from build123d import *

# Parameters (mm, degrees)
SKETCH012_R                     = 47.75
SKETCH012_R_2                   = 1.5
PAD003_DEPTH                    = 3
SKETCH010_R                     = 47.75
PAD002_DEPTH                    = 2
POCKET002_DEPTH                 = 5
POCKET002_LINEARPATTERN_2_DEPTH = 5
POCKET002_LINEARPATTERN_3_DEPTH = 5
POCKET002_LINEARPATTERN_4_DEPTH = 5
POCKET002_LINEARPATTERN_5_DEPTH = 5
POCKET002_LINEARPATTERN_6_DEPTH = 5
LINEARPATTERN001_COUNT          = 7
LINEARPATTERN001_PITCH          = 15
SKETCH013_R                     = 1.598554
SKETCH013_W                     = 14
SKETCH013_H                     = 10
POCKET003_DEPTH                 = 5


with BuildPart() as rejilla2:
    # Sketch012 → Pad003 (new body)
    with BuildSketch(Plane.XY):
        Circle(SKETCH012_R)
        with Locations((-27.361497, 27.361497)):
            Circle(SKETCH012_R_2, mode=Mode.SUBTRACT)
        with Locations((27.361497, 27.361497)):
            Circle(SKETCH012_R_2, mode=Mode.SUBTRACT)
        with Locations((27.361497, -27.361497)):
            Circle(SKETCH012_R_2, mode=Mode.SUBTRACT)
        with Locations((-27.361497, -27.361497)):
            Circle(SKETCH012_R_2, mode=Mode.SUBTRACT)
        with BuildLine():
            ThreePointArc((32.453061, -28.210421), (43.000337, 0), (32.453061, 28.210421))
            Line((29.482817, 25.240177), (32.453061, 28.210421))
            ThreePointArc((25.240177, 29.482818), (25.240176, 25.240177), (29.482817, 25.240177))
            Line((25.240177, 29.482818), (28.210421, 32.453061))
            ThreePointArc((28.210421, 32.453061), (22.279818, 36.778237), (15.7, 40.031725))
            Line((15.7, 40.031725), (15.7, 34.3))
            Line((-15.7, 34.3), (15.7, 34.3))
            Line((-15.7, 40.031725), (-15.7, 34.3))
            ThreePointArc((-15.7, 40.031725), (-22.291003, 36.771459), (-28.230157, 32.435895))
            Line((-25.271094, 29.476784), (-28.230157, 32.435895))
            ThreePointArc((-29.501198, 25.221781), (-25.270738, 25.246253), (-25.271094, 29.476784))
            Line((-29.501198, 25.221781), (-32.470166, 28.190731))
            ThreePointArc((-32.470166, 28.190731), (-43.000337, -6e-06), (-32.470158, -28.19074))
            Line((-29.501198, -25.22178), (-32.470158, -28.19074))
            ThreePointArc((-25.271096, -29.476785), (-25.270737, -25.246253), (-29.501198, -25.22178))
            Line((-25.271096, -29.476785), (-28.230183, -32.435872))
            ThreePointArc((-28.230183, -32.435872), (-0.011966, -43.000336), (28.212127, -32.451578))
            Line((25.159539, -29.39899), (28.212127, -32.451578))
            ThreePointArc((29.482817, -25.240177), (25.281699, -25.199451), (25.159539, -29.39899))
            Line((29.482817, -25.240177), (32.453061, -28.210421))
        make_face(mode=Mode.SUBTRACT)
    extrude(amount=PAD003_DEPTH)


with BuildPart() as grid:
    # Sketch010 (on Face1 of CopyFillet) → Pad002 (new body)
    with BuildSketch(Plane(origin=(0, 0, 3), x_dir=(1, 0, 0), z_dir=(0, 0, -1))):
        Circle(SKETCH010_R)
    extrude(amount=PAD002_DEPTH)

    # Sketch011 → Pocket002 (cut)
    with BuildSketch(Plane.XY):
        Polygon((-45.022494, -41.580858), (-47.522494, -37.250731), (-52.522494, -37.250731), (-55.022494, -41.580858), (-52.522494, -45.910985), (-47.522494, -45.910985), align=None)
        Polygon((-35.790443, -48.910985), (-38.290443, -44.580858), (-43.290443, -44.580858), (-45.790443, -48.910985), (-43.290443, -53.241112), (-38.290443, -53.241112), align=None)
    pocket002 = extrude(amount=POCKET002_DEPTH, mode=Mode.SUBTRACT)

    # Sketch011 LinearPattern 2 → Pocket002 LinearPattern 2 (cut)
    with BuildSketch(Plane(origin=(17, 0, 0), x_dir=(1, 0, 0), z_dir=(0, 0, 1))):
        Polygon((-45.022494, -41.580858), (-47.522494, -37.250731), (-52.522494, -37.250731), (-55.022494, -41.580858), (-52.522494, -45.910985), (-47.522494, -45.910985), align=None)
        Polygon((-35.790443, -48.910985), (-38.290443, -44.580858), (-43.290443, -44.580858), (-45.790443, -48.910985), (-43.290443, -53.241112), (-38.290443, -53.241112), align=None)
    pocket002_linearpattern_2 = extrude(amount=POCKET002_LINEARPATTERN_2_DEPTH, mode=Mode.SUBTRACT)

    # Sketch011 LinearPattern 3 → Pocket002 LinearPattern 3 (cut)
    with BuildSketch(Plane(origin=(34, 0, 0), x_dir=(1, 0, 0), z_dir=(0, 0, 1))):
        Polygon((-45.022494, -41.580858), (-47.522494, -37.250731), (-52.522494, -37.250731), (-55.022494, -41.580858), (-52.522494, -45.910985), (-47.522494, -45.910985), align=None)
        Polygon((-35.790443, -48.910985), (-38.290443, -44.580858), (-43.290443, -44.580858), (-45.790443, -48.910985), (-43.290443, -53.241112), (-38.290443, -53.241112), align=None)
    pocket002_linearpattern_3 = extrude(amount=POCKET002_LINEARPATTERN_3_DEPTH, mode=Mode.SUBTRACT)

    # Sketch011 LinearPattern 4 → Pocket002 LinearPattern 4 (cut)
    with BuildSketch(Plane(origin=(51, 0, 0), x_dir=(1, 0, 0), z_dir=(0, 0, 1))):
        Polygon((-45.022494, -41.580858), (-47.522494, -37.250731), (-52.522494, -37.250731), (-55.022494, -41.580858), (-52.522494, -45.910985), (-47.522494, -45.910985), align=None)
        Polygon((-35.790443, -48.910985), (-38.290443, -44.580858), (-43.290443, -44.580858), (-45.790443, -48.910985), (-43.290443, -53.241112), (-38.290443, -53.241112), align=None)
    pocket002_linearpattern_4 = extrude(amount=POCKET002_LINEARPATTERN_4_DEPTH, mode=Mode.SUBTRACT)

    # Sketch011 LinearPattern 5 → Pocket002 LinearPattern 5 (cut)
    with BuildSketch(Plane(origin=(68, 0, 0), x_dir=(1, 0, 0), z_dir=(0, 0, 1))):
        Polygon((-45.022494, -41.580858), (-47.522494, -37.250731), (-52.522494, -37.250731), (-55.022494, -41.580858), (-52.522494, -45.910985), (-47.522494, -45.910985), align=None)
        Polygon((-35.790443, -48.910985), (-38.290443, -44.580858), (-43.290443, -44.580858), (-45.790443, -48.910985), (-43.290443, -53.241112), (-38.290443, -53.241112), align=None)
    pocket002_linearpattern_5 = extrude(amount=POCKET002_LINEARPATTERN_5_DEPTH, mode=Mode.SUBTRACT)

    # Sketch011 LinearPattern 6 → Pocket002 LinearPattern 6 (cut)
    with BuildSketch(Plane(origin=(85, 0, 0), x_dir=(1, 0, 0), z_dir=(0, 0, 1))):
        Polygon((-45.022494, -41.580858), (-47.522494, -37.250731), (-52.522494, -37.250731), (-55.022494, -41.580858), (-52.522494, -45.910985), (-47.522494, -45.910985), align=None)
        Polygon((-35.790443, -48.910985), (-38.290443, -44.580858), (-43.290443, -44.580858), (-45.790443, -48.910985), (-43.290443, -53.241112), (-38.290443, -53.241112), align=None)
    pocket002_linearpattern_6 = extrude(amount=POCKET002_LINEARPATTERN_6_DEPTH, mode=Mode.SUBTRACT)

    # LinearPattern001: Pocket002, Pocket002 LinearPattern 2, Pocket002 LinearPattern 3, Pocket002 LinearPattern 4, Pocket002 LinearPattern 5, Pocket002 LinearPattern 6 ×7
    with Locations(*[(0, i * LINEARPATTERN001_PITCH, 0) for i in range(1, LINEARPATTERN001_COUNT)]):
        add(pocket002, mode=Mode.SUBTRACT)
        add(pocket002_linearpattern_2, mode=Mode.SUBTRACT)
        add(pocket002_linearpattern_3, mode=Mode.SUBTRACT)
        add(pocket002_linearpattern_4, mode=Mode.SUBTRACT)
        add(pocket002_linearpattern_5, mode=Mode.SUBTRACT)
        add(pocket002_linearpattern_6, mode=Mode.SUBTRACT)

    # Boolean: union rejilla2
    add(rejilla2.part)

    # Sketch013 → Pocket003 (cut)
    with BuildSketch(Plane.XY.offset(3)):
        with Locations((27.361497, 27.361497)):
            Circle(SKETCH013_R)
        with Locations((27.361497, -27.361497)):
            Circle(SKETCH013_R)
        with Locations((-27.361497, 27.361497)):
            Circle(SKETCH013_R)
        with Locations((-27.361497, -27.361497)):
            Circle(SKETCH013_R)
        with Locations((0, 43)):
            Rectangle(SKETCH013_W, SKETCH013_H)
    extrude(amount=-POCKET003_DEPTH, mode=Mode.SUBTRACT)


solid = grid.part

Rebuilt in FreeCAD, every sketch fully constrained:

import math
import FreeCAD as App
import Part
import Sketcher
from FreeCAD import Vector
Q = App.Units.Quantity


def add_polygon(sketch, points):
    """Adds a closed chain of lines whose ends are joined by coincident constraints."""
    first, n = sketch.GeometryCount, len(points)
    for a, b in zip(points, points[1:] + points[:1]):
        sketch.addGeometry(Part.LineSegment(App.Vector(*a, 0), App.Vector(*b, 0)), False)
    for i in range(n):
        sketch.addConstraint(Sketcher.Constraint("Coincident", first + i, 2, first + (i + 1) % n, 1))

doc = App.newDocument("Part")
body = doc.addObject("PartDesign::Body", "Body")

# Sketch on XY plane
sketch1 = body.newObject("Sketcher::SketchObject", "Sketch")
sketch1.AttachmentSupport = (doc.getObject("XY_Plane"), [""])
sketch1.MapMode = "FlatFace"
sketch1.addGeometry(Part.Circle(Vector(0, 0, 0), Vector(0, 0, 1), 47.75), False)
sketch1.addGeometry(Part.Circle(Vector(-27.361497, -27.361497, 0), Vector(0, 0, 1), 1.5), False)
sketch1.addGeometry(Part.Circle(Vector(27.361497, -27.361497, 0), Vector(0, 0, 1), 1.5), False)
sketch1.addGeometry(Part.Circle(Vector(-27.361497, 27.361497, 0), Vector(0, 0, 1), 1.5), False)
sketch1.addGeometry(Part.ArcOfCircle(Part.Circle(Vector(-0.000002, 0, 0), Vector(0, 0, 1), 43.000339), math.radians(-40.999401), math.radians(40.999401)), False)
sketch1.addGeometry(Part.LineSegment(Vector(32.453061, -28.210421, 0), Vector(29.482817, -25.240177, 0)), False)
sketch1.addGeometry(Part.ArcOfCircle(Part.Circle(Vector(27.361496, -27.361496, 0), Vector(0, 0, 1), 2.999999), math.radians(44.999981), math.radians(222.778404)), False)
sketch1.addGeometry(Part.LineSegment(Vector(25.159539, -29.39899, 0), Vector(28.212127, -32.451578, 0)), False)
sketch1.addGeometry(Part.ArcOfCircle(Part.Circle(Vector(0, -0.000001, 0), Vector(0, 0, 1), 43.000337), math.radians(-131.034302), math.radians(-48.997585)), False)
sketch1.addGeometry(Part.LineSegment(Vector(-28.230183, -32.435872, 0), Vector(-25.271096, -29.476785, 0)), False)
sketch1.addGeometry(Part.ArcOfCircle(Part.Circle(Vector(-27.398274, -27.361338, 0), Vector(0, 0, 1), 3), math.radians(-44.84157), math.radians(134.505255)), False)
sketch1.addGeometry(Part.LineSegment(Vector(-29.501198, -25.22178, 0), Vector(-32.470158, -28.19074, 0)), False)
sketch1.addGeometry(Part.ArcOfCircle(Part.Circle(Vector(0, 0, 0), Vector(0, 0, 1), 43.000337), math.radians(139.035351), math.radians(220.964665)), False)
sketch1.addGeometry(Part.LineSegment(Vector(-32.470166, 28.190731, 0), Vector(-29.501198, 25.221781, 0)), False)
sketch1.addGeometry(Part.ArcOfCircle(Part.Circle(Vector(-27.398274, 27.361339, 0), Vector(0, 0, 1), 3), math.radians(-134.505255), math.radians(44.841516)), False)
sketch1.addGeometry(Part.LineSegment(Vector(-25.271094, 29.476784, 0), Vector(-28.230157, 32.435895, 0)), False)
sketch1.addGeometry(Part.ArcOfCircle(Part.Circle(Vector(0.000005, -0.000012, 0), Vector(0, 0, 1), 43.00035), math.radians(111.414564), math.radians(131.03425)), False)
sketch1.addGeometry(Part.LineSegment(Vector(-15.7, 40.031725, 0), Vector(-15.7, 34.3, 0)), False)
sketch1.addGeometry(Part.LineSegment(Vector(-15.7, 34.3, 0), Vector(15.7, 34.3, 0)), False)
sketch1.addGeometry(Part.LineSegment(Vector(15.7, 34.3, 0), Vector(15.7, 40.031725, 0)), False)
sketch1.addGeometry(Part.ArcOfCircle(Part.Circle(Vector(-0.000002, -0.000005, 0), Vector(0, 0, 1), 43.000343), math.radians(49.0006), math.radians(68.585437)), False)
sketch1.addGeometry(Part.LineSegment(Vector(28.210421, 32.453061, 0), Vector(25.240177, 29.482818, 0)), False)
sketch1.addGeometry(Part.ArcOfCircle(Part.Circle(Vector(27.361497, 27.361497, 0), Vector(0, 0, 1), 3), math.radians(134.99998), math.radians(315.000007)), False)
sketch1.addGeometry(Part.LineSegment(Vector(29.482817, 25.240177, 0), Vector(32.453061, 28.210421, 0)), False)
sketch1.addGeometry(Part.Circle(Vector(27.361497, 27.361497, 0), Vector(0, 0, 1), 1.5), False)
sketch1.addConstraint(Sketcher.Constraint("Coincident", 4, 1, 5, 1))
sketch1.addConstraint(Sketcher.Constraint("Coincident", 5, 2, 6, 1))
sketch1.addConstraint(Sketcher.Constraint("Coincident", 6, 2, 7, 1))
sketch1.addConstraint(Sketcher.Constraint("Coincident", 7, 2, 8, 2))
sketch1.addConstraint(Sketcher.Constraint("Coincident", 8, 1, 9, 1))
sketch1.addConstraint(Sketcher.Constraint("Coincident", 9, 2, 10, 1))
sketch1.addConstraint(Sketcher.Constraint("Coincident", 10, 2, 11, 1))
sketch1.addConstraint(Sketcher.Constraint("Coincident", 11, 2, 12, 2))
sketch1.addConstraint(Sketcher.Constraint("Coincident", 12, 1, 13, 1))
sketch1.addConstraint(Sketcher.Constraint("Coincident", 13, 2, 14, 1))
sketch1.addConstraint(Sketcher.Constraint("Coincident", 14, 2, 15, 1))
sketch1.addConstraint(Sketcher.Constraint("Coincident", 15, 2, 16, 2))
sketch1.addConstraint(Sketcher.Constraint("Coincident", 16, 1, 17, 1))
sketch1.addConstraint(Sketcher.Constraint("Coincident", 17, 2, 18, 1))
sketch1.addConstraint(Sketcher.Constraint("Coincident", 18, 2, 19, 1))
sketch1.addConstraint(Sketcher.Constraint("Coincident", 19, 2, 20, 2))
sketch1.addConstraint(Sketcher.Constraint("Coincident", 20, 1, 21, 1))
sketch1.addConstraint(Sketcher.Constraint("Coincident", 21, 2, 22, 1))
sketch1.addConstraint(Sketcher.Constraint("Coincident", 22, 2, 23, 1))
sketch1.addConstraint(Sketcher.Constraint("Coincident", 23, 2, 4, 2))
sketch1.addConstraint(Sketcher.Constraint("Vertical", 17))
sketch1.addConstraint(Sketcher.Constraint("Horizontal", 18))
sketch1.addConstraint(Sketcher.Constraint("Vertical", 19))
sketch1.addConstraint(Sketcher.Constraint("Coincident", 0, 3, -1, 1))
sketch1.addConstraint(Sketcher.Constraint("Coincident", 4, 3, -1, 1))
sketch1.addConstraint(Sketcher.Constraint("Coincident", 8, 3, -1, 1))
sketch1.addConstraint(Sketcher.Constraint("Coincident", 12, 3, -1, 1))
sketch1.addConstraint(Sketcher.Constraint("Coincident", 20, 3, -1, 1))
sketch1.addConstraint(Sketcher.Constraint("Coincident", 6, 3, 2, 3))
sketch1.addConstraint(Sketcher.Constraint("Coincident", 24, 3, 22, 3))
sketch1.addConstraint(Sketcher.Constraint("Diameter", 1, 3.0))
sketch1.addConstraint(Sketcher.Constraint("Diameter", 2, 3.0))
sketch1.addConstraint(Sketcher.Constraint("Diameter", 3, 3.0))
sketch1.addConstraint(Sketcher.Constraint("Diameter", 24, 3.0))
sketch1.addConstraint(Sketcher.Constraint("Radius", 6, 2.999999))
sketch1.addConstraint(Sketcher.Constraint("Radius", 10, 3.0))
sketch1.addConstraint(Sketcher.Constraint("Radius", 14, 3.0))
sketch1.addConstraint(Sketcher.Constraint("Radius", 22, 3.0))
sketch1.addConstraint(Sketcher.Constraint("Diameter", 0, 95.5))
sketch1.addConstraint(Sketcher.Constraint("DistanceX", 18, 1, 18, 2, 31.4))
sketch1.addConstraint(Sketcher.Constraint("DistanceX", 16, 1, -1, 1, 15.7))
sketch1.addConstraint(Sketcher.Constraint("DistanceY", -1, 1, 17, 2, 34.3))
sketch1.addConstraint(Sketcher.Constraint("Radius", 4, 43.000339))
sketch1.addConstraint(Sketcher.Constraint("Radius", 16, 43.00035))
sketch1.addConstraint(Sketcher.Constraint("Radius", 8, 43.000337))
sketch1.addConstraint(Sketcher.Constraint("Radius", 12, 43.000337))
sketch1.addConstraint(Sketcher.Constraint("Radius", 20, 43.000343))
sketch1.addConstraint(Sketcher.Constraint("DistanceX", 10, 2, -1, 1, 29.501198))
sketch1.addConstraint(Sketcher.Constraint("DistanceX", 4, 3, 2, 3, 27.361499))
sketch1.addConstraint(Sketcher.Constraint("DistanceX", 4, 3, 22, 3, 27.361498))
sketch1.addConstraint(Sketcher.Constraint("DistanceY", 7, 2, 5, 2, 7.211401))
sketch1.addConstraint(Sketcher.Constraint("DistanceX", 1, 3, 9, 2, 2.090401))
sketch1.addConstraint(Sketcher.Constraint("DistanceX", 9, 2, 16, 3, 25.271101))
sketch1.addConstraint(Sketcher.Constraint("DistanceX", 10, 2, 1, 3, 2.139701))
sketch1.addConstraint(Sketcher.Constraint("DistanceY", 11, 2, 10, 3, 0.829402))
sketch1.addConstraint(Sketcher.Constraint("DistanceX", 13, 2, 3, 3, 2.139701))
sketch1.addConstraint(Sketcher.Constraint("DistanceY", 3, 3, 15, 2, 5.074398))
sketch1.addConstraint(Sketcher.Constraint("Distance", 5, 4.200559))
sketch1.addConstraint(Sketcher.Constraint("Distance", 7, 4.317011))
sketch1.addConstraint(Sketcher.Constraint("Distance", 9, 4.184781))
sketch1.addConstraint(Sketcher.Constraint("Distance", 15, 4.184781))
sketch1.addConstraint(Sketcher.Constraint("Distance", 21, 4.200559))
sketch1.addConstraint(Sketcher.Constraint("Distance", 23, 4.200559))
sketch1.addConstraint(Sketcher.Constraint("DistanceY", 17, 2, 17, 1, 5.731725))
sketch1.addConstraint(Sketcher.Constraint("DistanceY", 10, 3, -1, 1, 27.361338))
sketch1.addConstraint(Sketcher.Constraint("DistanceY", -1, 1, 14, 3, 27.361339))
sketch1.addConstraint(Sketcher.Constraint("DistanceX", -1, 1, 4, 1, 32.453061))
sketch1.addConstraint(Sketcher.Constraint("DistanceX", -1, 1, 6, 2, 25.159539))
sketch1.addConstraint(Sketcher.Constraint("DistanceY", 10, 2, -1, 1, 25.22178))
sketch1.addConstraint(Sketcher.Constraint("DistanceY", -1, 1, 12, 1, 28.190731))
sketch1.addConstraint(Sketcher.Constraint("DistanceY", -1, 1, 13, 2, 25.221781))
sketch1.addConstraint(Sketcher.Constraint("DistanceX", -1, 1, 20, 1, 28.210421))
sketch1.addConstraint(Sketcher.Constraint("DistanceY", -1, 1, 21, 2, 29.482818))
sketch1.addConstraint(Sketcher.Constraint("DistanceX", -1, 1, 23, 2, 32.453061))
sketch1.addConstraint(Sketcher.Constraint("DistanceY", 1, 3, 10, 3, 0.000159))
sketch1.addConstraint(Sketcher.Constraint("DistanceX", 12, 1, 3, 3, 5.108669))
sketch1.addConstraint(Sketcher.Constraint("DistanceX", 14, 3, 14, 2, 2.12718))
pad1 = body.newObject("PartDesign::Pad", "Pad")
pad1.Profile = sketch1
pad1.Length = 3
body2 = doc.addObject("PartDesign::Body", "Body001")

# Sketch on XY plane
sketch2 = body2.newObject("Sketcher::SketchObject", "Sketch001")
sketch2.AttachmentSupport = (doc.getObject("XY_Plane001"), [""])
sketch2.MapMode = "FlatFace"
sketch2.AttachmentOffset = App.Placement(Vector(0, 0, 3), App.Rotation())
sketch2.addGeometry(Part.Circle(Vector(0, 0, 0), Vector(0, 0, 1), 48), False)
sketch2.addConstraint(Sketcher.Constraint("Coincident", 0, 3, -1, 1))
sketch2.addConstraint(Sketcher.Constraint("Diameter", 0, 95.5))
pad2 = body2.newObject("PartDesign::Pad", "Pad001")
pad2.Profile = sketch2
pad2.Length = 2
pad2.Reversed = True

# Sketch on XY plane
sketch3 = body2.newObject("Sketcher::SketchObject", "Sketch002")
sketch3.AttachmentSupport = (doc.getObject("XY_Plane001"), [""])
sketch3.MapMode = "FlatFace"
add_polygon(sketch3, [(-45, -41.6), (-47.5, -37.3), (-52.5, -37.3), (-55, -41.6), (-52.5, -45.9), (-47.5, -45.9)])  # lines 0-5
add_polygon(sketch3, [(-35.8, -48.9), (-38.3, -44.6), (-43.3, -44.6), (-45.8, -48.9), (-43.3, -53.2), (-38.3, -53.2)])  # lines 6-11
sketch3.addConstraint(Sketcher.Constraint("Horizontal", 1))
sketch3.addConstraint(Sketcher.Constraint("Horizontal", 4))
sketch3.addConstraint(Sketcher.Constraint("Horizontal", 7))
sketch3.addConstraint(Sketcher.Constraint("Horizontal", 10))
sketch3.addConstraint(Sketcher.Constraint("Parallel", 0, 3))
sketch3.addConstraint(Sketcher.Constraint("Parallel", 2, 5))
sketch3.addConstraint(Sketcher.Constraint("Parallel", 3, 6))
sketch3.addConstraint(Sketcher.Constraint("Parallel", 5, 8))
sketch3.addConstraint(Sketcher.Constraint("Parallel", 6, 9))
sketch3.addConstraint(Sketcher.Constraint("Parallel", 8, 11))
sketch3.addConstraint(Sketcher.Constraint("Horizontal", 2, 2, 5, 2))
sketch3.addConstraint(Sketcher.Constraint("Horizontal", 8, 2, 11, 2))
sketch3.addConstraint(Sketcher.Constraint("Vertical", 1, 2, 3, 2))
sketch3.addConstraint(Sketcher.Constraint("Vertical", 0, 2, 4, 2))
sketch3.addConstraint(Sketcher.Constraint("Vertical", 7, 2, 9, 2))
sketch3.addConstraint(Sketcher.Constraint("Equal", 4, 7))
sketch3.addConstraint(Sketcher.Constraint("Equal", 5, 6))
sketch3.addConstraint(Sketcher.Constraint("DistanceX", 1, 2, 1, 1, 5.0))
sketch3.addConstraint(Sketcher.Constraint("Angle", 0, Q("120 deg")))
sketch3.addConstraint(Sketcher.Constraint("Distance", 0, 5.0))
sketch3.addConstraint(Sketcher.Constraint("DistanceY", 6, 2, 5, 2, 3.0))
sketch3.addConstraint(Sketcher.Constraint("DistanceY", 0, 2, -1, 1, 37.250731))
sketch3.addConstraint(Sketcher.Constraint("DistanceX", 5, 2, 6, 2, 6.732051))
sketch3.addConstraint(Sketcher.Constraint("DistanceX", 0, 2, -1, 1, 47.522494))
pocket1 = body2.newObject("PartDesign::Pocket", "Pocket")
pocket1.Profile = sketch3
pocket1.Length = 5
pocket1.Reversed = True

# Sketch on XY plane
sketch4 = body2.newObject("Sketcher::SketchObject", "Sketch003")
sketch4.AttachmentSupport = (doc.getObject("XY_Plane001"), [""])
sketch4.MapMode = "FlatFace"
add_polygon(sketch4, [(-28, -41.6), (-30.5, -37.3), (-35.5, -37.3), (-38, -41.6), (-35.5, -45.9), (-30.5, -45.9)])  # lines 0-5
add_polygon(sketch4, [(-18.8, -48.9), (-21.3, -44.6), (-26.3, -44.6), (-28.8, -48.9), (-26.3, -53.2), (-21.3, -53.2)])  # lines 6-11
sketch4.addConstraint(Sketcher.Constraint("Horizontal", 1))
sketch4.addConstraint(Sketcher.Constraint("Horizontal", 4))
sketch4.addConstraint(Sketcher.Constraint("Horizontal", 7))
sketch4.addConstraint(Sketcher.Constraint("Horizontal", 10))
sketch4.addConstraint(Sketcher.Constraint("Parallel", 0, 3))
sketch4.addConstraint(Sketcher.Constraint("Parallel", 2, 5))
sketch4.addConstraint(Sketcher.Constraint("Parallel", 3, 6))
sketch4.addConstraint(Sketcher.Constraint("Parallel", 5, 8))
sketch4.addConstraint(Sketcher.Constraint("Parallel", 6, 9))
sketch4.addConstraint(Sketcher.Constraint("Parallel", 8, 11))
sketch4.addConstraint(Sketcher.Constraint("Horizontal", 2, 2, 5, 2))
sketch4.addConstraint(Sketcher.Constraint("Horizontal", 8, 2, 11, 2))
sketch4.addConstraint(Sketcher.Constraint("Vertical", 1, 2, 3, 2))
sketch4.addConstraint(Sketcher.Constraint("Vertical", 0, 2, 4, 2))
sketch4.addConstraint(Sketcher.Constraint("Vertical", 7, 2, 9, 2))
sketch4.addConstraint(Sketcher.Constraint("Equal", 4, 7))
sketch4.addConstraint(Sketcher.Constraint("Equal", 5, 6))
sketch4.addConstraint(Sketcher.Constraint("DistanceX", 1, 2, 1, 1, 5.0))
sketch4.addConstraint(Sketcher.Constraint("Angle", 0, Q("120 deg")))
sketch4.addConstraint(Sketcher.Constraint("Distance", 0, 5.0))
sketch4.addConstraint(Sketcher.Constraint("DistanceY", 6, 2, 5, 2, 3.0))
sketch4.addConstraint(Sketcher.Constraint("DistanceY", 0, 2, -1, 1, 37.250731))
sketch4.addConstraint(Sketcher.Constraint("DistanceX", 5, 2, 6, 2, 6.732051))
sketch4.addConstraint(Sketcher.Constraint("DistanceX", 0, 2, -1, 1, 30.522494))
pocket2 = body2.newObject("PartDesign::Pocket", "Pocket001")
pocket2.Profile = sketch4
pocket2.Length = 5
pocket2.Reversed = True

# Sketch on XY plane
sketch5 = body2.newObject("Sketcher::SketchObject", "Sketch004")
sketch5.AttachmentSupport = (doc.getObject("XY_Plane001"), [""])
sketch5.MapMode = "FlatFace"
add_polygon(sketch5, [(-11, -41.6), (-13.5, -37.3), (-18.5, -37.3), (-21, -41.6), (-18.5, -45.9), (-13.5, -45.9)])  # lines 0-5
add_polygon(sketch5, [(-1.8, -48.9), (-4.3, -44.6), (-9.3, -44.6), (-11.8, -48.9), (-9.3, -53.2), (-4.3, -53.2)])  # lines 6-11
sketch5.addConstraint(Sketcher.Constraint("Horizontal", 1))
sketch5.addConstraint(Sketcher.Constraint("Horizontal", 4))
sketch5.addConstraint(Sketcher.Constraint("Horizontal", 7))
sketch5.addConstraint(Sketcher.Constraint("Horizontal", 10))
sketch5.addConstraint(Sketcher.Constraint("Parallel", 0, 3))
sketch5.addConstraint(Sketcher.Constraint("Parallel", 2, 5))
sketch5.addConstraint(Sketcher.Constraint("Parallel", 3, 6))
sketch5.addConstraint(Sketcher.Constraint("Parallel", 5, 8))
sketch5.addConstraint(Sketcher.Constraint("Parallel", 6, 9))
sketch5.addConstraint(Sketcher.Constraint("Parallel", 8, 11))
sketch5.addConstraint(Sketcher.Constraint("Horizontal", 2, 2, 5, 2))
sketch5.addConstraint(Sketcher.Constraint("Horizontal", 8, 2, 11, 2))
sketch5.addConstraint(Sketcher.Constraint("Vertical", 1, 2, 3, 2))
sketch5.addConstraint(Sketcher.Constraint("Vertical", 0, 2, 4, 2))
sketch5.addConstraint(Sketcher.Constraint("Vertical", 7, 2, 9, 2))
sketch5.addConstraint(Sketcher.Constraint("Equal", 4, 7))
sketch5.addConstraint(Sketcher.Constraint("Equal", 5, 6))
sketch5.addConstraint(Sketcher.Constraint("DistanceX", 1, 2, 1, 1, 5.0))
sketch5.addConstraint(Sketcher.Constraint("Angle", 0, Q("120 deg")))
sketch5.addConstraint(Sketcher.Constraint("Distance", 0, 5.0))
sketch5.addConstraint(Sketcher.Constraint("DistanceY", 6, 2, 5, 2, 3.0))
sketch5.addConstraint(Sketcher.Constraint("DistanceY", 0, 2, -1, 1, 37.250731))
sketch5.addConstraint(Sketcher.Constraint("DistanceX", 5, 2, 6, 2, 6.732051))
sketch5.addConstraint(Sketcher.Constraint("DistanceX", 0, 2, -1, 1, 13.522494))
pocket3 = body2.newObject("PartDesign::Pocket", "Pocket002")
pocket3.Profile = sketch5
pocket3.Length = 5
pocket3.Reversed = True

# Sketch on XY plane
sketch6 = body2.newObject("Sketcher::SketchObject", "Sketch005")
sketch6.AttachmentSupport = (doc.getObject("XY_Plane001"), [""])
sketch6.MapMode = "FlatFace"
add_polygon(sketch6, [(6, -41.6), (3.5, -37.3), (-1.5, -37.3), (-4, -41.6), (-1.5, -45.9), (3.5, -45.9)])  # lines 0-5
add_polygon(sketch6, [(15.2, -48.9), (12.7, -44.6), (7.7, -44.6), (5.2, -48.9), (7.7, -53.2), (12.7, -53.2)])  # lines 6-11
sketch6.addConstraint(Sketcher.Constraint("Horizontal", 1))
sketch6.addConstraint(Sketcher.Constraint("Horizontal", 4))
sketch6.addConstraint(Sketcher.Constraint("Horizontal", 7))
sketch6.addConstraint(Sketcher.Constraint("Horizontal", 10))
sketch6.addConstraint(Sketcher.Constraint("Parallel", 0, 3))
sketch6.addConstraint(Sketcher.Constraint("Parallel", 2, 5))
sketch6.addConstraint(Sketcher.Constraint("Parallel", 3, 6))
sketch6.addConstraint(Sketcher.Constraint("Parallel", 5, 8))
sketch6.addConstraint(Sketcher.Constraint("Parallel", 6, 9))
sketch6.addConstraint(Sketcher.Constraint("Parallel", 8, 11))
sketch6.addConstraint(Sketcher.Constraint("Horizontal", 2, 2, 5, 2))
sketch6.addConstraint(Sketcher.Constraint("Horizontal", 8, 2, 11, 2))
sketch6.addConstraint(Sketcher.Constraint("Vertical", 1, 2, 3, 2))
sketch6.addConstraint(Sketcher.Constraint("Vertical", 0, 2, 4, 2))
sketch6.addConstraint(Sketcher.Constraint("Vertical", 7, 2, 9, 2))
sketch6.addConstraint(Sketcher.Constraint("Equal", 4, 7))
sketch6.addConstraint(Sketcher.Constraint("Equal", 5, 6))
sketch6.addConstraint(Sketcher.Constraint("DistanceX", 1, 2, 1, 1, 5.0))
sketch6.addConstraint(Sketcher.Constraint("Angle", 0, Q("120 deg")))
sketch6.addConstraint(Sketcher.Constraint("Distance", 0, 5.0))
sketch6.addConstraint(Sketcher.Constraint("DistanceY", 6, 2, 5, 2, 3.0))
sketch6.addConstraint(Sketcher.Constraint("DistanceY", 0, 2, -1, 1, 37.250731))
sketch6.addConstraint(Sketcher.Constraint("DistanceX", 5, 2, 6, 2, 6.732051))
sketch6.addConstraint(Sketcher.Constraint("DistanceX", -1, 1, 0, 2, 3.477506))
pocket4 = body2.newObject("PartDesign::Pocket", "Pocket003")
pocket4.Profile = sketch6
pocket4.Length = 5
pocket4.Reversed = True

# Sketch on XY plane
sketch7 = body2.newObject("Sketcher::SketchObject", "Sketch006")
sketch7.AttachmentSupport = (doc.getObject("XY_Plane001"), [""])
sketch7.MapMode = "FlatFace"
add_polygon(sketch7, [(23, -41.6), (20.5, -37.3), (15.5, -37.3), (13, -41.6), (15.5, -45.9), (20.5, -45.9)])  # lines 0-5
add_polygon(sketch7, [(32.2, -48.9), (29.7, -44.6), (24.7, -44.6), (22.2, -48.9), (24.7, -53.2), (29.7, -53.2)])  # lines 6-11
sketch7.addConstraint(Sketcher.Constraint("Horizontal", 1))
sketch7.addConstraint(Sketcher.Constraint("Horizontal", 4))
sketch7.addConstraint(Sketcher.Constraint("Horizontal", 7))
sketch7.addConstraint(Sketcher.Constraint("Horizontal", 10))
sketch7.addConstraint(Sketcher.Constraint("Parallel", 0, 3))
sketch7.addConstraint(Sketcher.Constraint("Parallel", 2, 5))
sketch7.addConstraint(Sketcher.Constraint("Parallel", 3, 6))
sketch7.addConstraint(Sketcher.Constraint("Parallel", 5, 8))
sketch7.addConstraint(Sketcher.Constraint("Parallel", 6, 9))
sketch7.addConstraint(Sketcher.Constraint("Parallel", 8, 11))
sketch7.addConstraint(Sketcher.Constraint("Horizontal", 2, 2, 5, 2))
sketch7.addConstraint(Sketcher.Constraint("Horizontal", 8, 2, 11, 2))
sketch7.addConstraint(Sketcher.Constraint("Vertical", 1, 2, 3, 2))
sketch7.addConstraint(Sketcher.Constraint("Vertical", 0, 2, 4, 2))
sketch7.addConstraint(Sketcher.Constraint("Vertical", 7, 2, 9, 2))
sketch7.addConstraint(Sketcher.Constraint("Equal", 4, 7))
sketch7.addConstraint(Sketcher.Constraint("Equal", 5, 6))
sketch7.addConstraint(Sketcher.Constraint("DistanceX", 1, 2, 1, 1, 5.0))
sketch7.addConstraint(Sketcher.Constraint("Angle", 0, Q("120 deg")))
sketch7.addConstraint(Sketcher.Constraint("Distance", 0, 5.0))
sketch7.addConstraint(Sketcher.Constraint("DistanceY", 6, 2, 5, 2, 3.0))
sketch7.addConstraint(Sketcher.Constraint("DistanceY", 0, 2, -1, 1, 37.250731))
sketch7.addConstraint(Sketcher.Constraint("DistanceX", 5, 2, 6, 2, 6.732051))
sketch7.addConstraint(Sketcher.Constraint("DistanceX", -1, 1, 0, 2, 20.477506))
pocket5 = body2.newObject("PartDesign::Pocket", "Pocket004")
pocket5.Profile = sketch7
pocket5.Length = 5
pocket5.Reversed = True

# Sketch on XY plane
sketch8 = body2.newObject("Sketcher::SketchObject", "Sketch007")
sketch8.AttachmentSupport = (doc.getObject("XY_Plane001"), [""])
sketch8.MapMode = "FlatFace"
add_polygon(sketch8, [(40, -41.6), (37.5, -37.3), (32.5, -37.3), (30, -41.6), (32.5, -45.9), (37.5, -45.9)])  # lines 0-5
add_polygon(sketch8, [(49.2, -48.9), (46.7, -44.6), (41.7, -44.6), (39.2, -48.9), (41.7, -53.2), (46.7, -53.2)])  # lines 6-11
sketch8.addConstraint(Sketcher.Constraint("Horizontal", 1))
sketch8.addConstraint(Sketcher.Constraint("Horizontal", 4))
sketch8.addConstraint(Sketcher.Constraint("Horizontal", 7))
sketch8.addConstraint(Sketcher.Constraint("Horizontal", 10))
sketch8.addConstraint(Sketcher.Constraint("Parallel", 0, 3))
sketch8.addConstraint(Sketcher.Constraint("Parallel", 2, 5))
sketch8.addConstraint(Sketcher.Constraint("Parallel", 3, 6))
sketch8.addConstraint(Sketcher.Constraint("Parallel", 5, 8))
sketch8.addConstraint(Sketcher.Constraint("Parallel", 6, 9))
sketch8.addConstraint(Sketcher.Constraint("Parallel", 8, 11))
sketch8.addConstraint(Sketcher.Constraint("Horizontal", 2, 2, 5, 2))
sketch8.addConstraint(Sketcher.Constraint("Horizontal", 8, 2, 11, 2))
sketch8.addConstraint(Sketcher.Constraint("Vertical", 1, 2, 3, 2))
sketch8.addConstraint(Sketcher.Constraint("Vertical", 0, 2, 4, 2))
sketch8.addConstraint(Sketcher.Constraint("Vertical", 7, 2, 9, 2))
sketch8.addConstraint(Sketcher.Constraint("Equal", 4, 7))
sketch8.addConstraint(Sketcher.Constraint("Equal", 5, 6))
sketch8.addConstraint(Sketcher.Constraint("DistanceX", 1, 2, 1, 1, 5.0))
sketch8.addConstraint(Sketcher.Constraint("Angle", 0, Q("120 deg")))
sketch8.addConstraint(Sketcher.Constraint("Distance", 0, 5.0))
sketch8.addConstraint(Sketcher.Constraint("DistanceY", 6, 2, 5, 2, 3.0))
sketch8.addConstraint(Sketcher.Constraint("DistanceY", 0, 2, -1, 1, 37.250731))
sketch8.addConstraint(Sketcher.Constraint("DistanceX", 5, 2, 6, 2, 6.732051))
sketch8.addConstraint(Sketcher.Constraint("DistanceX", -1, 1, 0, 2, 37.477506))
pocket6 = body2.newObject("PartDesign::Pocket", "Pocket005")
pocket6.Profile = sketch8
pocket6.Length = 5
pocket6.Reversed = True
doc.recompute()

linearpattern = body2.newObject("PartDesign::LinearPattern", "LinearPattern")
linearpattern.Originals = [pocket1, pocket2, pocket3, pocket4, pocket5, pocket6]
linearpattern.Direction = (doc.getObject("Y_Axis001"), [""])
linearpattern.Mode = "offset"
linearpattern.Offset = 15
linearpattern.Occurrences = 7
body2.Tip = linearpattern
doc.recompute()

boolean = body2.newObject("PartDesign::Boolean", "Boolean")
boolean.Type = "Fuse"
boolean.addObjects([body])

# Sketch on XY plane
sketch9 = body2.newObject("Sketcher::SketchObject", "Sketch008")
sketch9.AttachmentSupport = (doc.getObject("XY_Plane001"), [""])
sketch9.MapMode = "FlatFace"
sketch9.AttachmentOffset = App.Placement(Vector(0, 0, 3), App.Rotation())
sketch9.addGeometry(Part.Circle(Vector(27.4, 27.4, 0), Vector(0, 0, 1), 1.6), False)  # 0
sketch9.addGeometry(Part.Circle(Vector(27.4, -27.4, 0), Vector(0, 0, 1), 1.6), False)  # 1
sketch9.addGeometry(Part.Circle(Vector(-27.4, 27.4, 0), Vector(0, 0, 1), 1.6), False)  # 2
sketch9.addGeometry(Part.Circle(Vector(-27.4, -27.4, 0), Vector(0, 0, 1), 1.6), False)  # 3
add_polygon(sketch9, [(-7, 48), (-7, 38), (7, 38), (7, 48)])  # lines 4-7
sketch9.addConstraint(Sketcher.Constraint("Vertical", 4))
sketch9.addConstraint(Sketcher.Constraint("Horizontal", 5))
sketch9.addConstraint(Sketcher.Constraint("Vertical", 6))
sketch9.addConstraint(Sketcher.Constraint("Horizontal", 7))
sketch9.addConstraint(Sketcher.Constraint("Equal", 0, 1))
sketch9.addConstraint(Sketcher.Constraint("Equal", 1, 2))
sketch9.addConstraint(Sketcher.Constraint("Equal", 2, 3))
sketch9.addConstraint(Sketcher.Constraint("Symmetric", 1, 3, 2, 3, -1, 1))
sketch9.addConstraint(Sketcher.Constraint("Symmetric", 0, 3, 3, 3, -1, 1))
sketch9.addConstraint(Sketcher.Constraint("Symmetric", 0, 3, 2, 3, -2))
sketch9.addConstraint(Sketcher.Constraint("DistanceX", 5, 1, 5, 2, 14.0))
sketch9.addConstraint(Sketcher.Constraint("DistanceY", 4, 2, 4, 1, 10.0))
sketch9.addConstraint(Sketcher.Constraint("DistanceX", 4, 2, -1, 1, 7.0))
sketch9.addConstraint(Sketcher.Constraint("DistanceY", -1, 1, 4, 2, 38.0))
sketch9.addConstraint(Sketcher.Constraint("Diameter", 0, 3.197108))
sketch9.addConstraint(Sketcher.Constraint("DistanceX", -1, 1, 0, 3, 27.361497))
sketch9.addConstraint(Sketcher.Constraint("DistanceY", -1, 1, 0, 3, 27.361497))
pocket7 = body2.newObject("PartDesign::Pocket", "Pocket006")
pocket7.Profile = sketch9
pocket7.Length = 5

doc.recompute()
